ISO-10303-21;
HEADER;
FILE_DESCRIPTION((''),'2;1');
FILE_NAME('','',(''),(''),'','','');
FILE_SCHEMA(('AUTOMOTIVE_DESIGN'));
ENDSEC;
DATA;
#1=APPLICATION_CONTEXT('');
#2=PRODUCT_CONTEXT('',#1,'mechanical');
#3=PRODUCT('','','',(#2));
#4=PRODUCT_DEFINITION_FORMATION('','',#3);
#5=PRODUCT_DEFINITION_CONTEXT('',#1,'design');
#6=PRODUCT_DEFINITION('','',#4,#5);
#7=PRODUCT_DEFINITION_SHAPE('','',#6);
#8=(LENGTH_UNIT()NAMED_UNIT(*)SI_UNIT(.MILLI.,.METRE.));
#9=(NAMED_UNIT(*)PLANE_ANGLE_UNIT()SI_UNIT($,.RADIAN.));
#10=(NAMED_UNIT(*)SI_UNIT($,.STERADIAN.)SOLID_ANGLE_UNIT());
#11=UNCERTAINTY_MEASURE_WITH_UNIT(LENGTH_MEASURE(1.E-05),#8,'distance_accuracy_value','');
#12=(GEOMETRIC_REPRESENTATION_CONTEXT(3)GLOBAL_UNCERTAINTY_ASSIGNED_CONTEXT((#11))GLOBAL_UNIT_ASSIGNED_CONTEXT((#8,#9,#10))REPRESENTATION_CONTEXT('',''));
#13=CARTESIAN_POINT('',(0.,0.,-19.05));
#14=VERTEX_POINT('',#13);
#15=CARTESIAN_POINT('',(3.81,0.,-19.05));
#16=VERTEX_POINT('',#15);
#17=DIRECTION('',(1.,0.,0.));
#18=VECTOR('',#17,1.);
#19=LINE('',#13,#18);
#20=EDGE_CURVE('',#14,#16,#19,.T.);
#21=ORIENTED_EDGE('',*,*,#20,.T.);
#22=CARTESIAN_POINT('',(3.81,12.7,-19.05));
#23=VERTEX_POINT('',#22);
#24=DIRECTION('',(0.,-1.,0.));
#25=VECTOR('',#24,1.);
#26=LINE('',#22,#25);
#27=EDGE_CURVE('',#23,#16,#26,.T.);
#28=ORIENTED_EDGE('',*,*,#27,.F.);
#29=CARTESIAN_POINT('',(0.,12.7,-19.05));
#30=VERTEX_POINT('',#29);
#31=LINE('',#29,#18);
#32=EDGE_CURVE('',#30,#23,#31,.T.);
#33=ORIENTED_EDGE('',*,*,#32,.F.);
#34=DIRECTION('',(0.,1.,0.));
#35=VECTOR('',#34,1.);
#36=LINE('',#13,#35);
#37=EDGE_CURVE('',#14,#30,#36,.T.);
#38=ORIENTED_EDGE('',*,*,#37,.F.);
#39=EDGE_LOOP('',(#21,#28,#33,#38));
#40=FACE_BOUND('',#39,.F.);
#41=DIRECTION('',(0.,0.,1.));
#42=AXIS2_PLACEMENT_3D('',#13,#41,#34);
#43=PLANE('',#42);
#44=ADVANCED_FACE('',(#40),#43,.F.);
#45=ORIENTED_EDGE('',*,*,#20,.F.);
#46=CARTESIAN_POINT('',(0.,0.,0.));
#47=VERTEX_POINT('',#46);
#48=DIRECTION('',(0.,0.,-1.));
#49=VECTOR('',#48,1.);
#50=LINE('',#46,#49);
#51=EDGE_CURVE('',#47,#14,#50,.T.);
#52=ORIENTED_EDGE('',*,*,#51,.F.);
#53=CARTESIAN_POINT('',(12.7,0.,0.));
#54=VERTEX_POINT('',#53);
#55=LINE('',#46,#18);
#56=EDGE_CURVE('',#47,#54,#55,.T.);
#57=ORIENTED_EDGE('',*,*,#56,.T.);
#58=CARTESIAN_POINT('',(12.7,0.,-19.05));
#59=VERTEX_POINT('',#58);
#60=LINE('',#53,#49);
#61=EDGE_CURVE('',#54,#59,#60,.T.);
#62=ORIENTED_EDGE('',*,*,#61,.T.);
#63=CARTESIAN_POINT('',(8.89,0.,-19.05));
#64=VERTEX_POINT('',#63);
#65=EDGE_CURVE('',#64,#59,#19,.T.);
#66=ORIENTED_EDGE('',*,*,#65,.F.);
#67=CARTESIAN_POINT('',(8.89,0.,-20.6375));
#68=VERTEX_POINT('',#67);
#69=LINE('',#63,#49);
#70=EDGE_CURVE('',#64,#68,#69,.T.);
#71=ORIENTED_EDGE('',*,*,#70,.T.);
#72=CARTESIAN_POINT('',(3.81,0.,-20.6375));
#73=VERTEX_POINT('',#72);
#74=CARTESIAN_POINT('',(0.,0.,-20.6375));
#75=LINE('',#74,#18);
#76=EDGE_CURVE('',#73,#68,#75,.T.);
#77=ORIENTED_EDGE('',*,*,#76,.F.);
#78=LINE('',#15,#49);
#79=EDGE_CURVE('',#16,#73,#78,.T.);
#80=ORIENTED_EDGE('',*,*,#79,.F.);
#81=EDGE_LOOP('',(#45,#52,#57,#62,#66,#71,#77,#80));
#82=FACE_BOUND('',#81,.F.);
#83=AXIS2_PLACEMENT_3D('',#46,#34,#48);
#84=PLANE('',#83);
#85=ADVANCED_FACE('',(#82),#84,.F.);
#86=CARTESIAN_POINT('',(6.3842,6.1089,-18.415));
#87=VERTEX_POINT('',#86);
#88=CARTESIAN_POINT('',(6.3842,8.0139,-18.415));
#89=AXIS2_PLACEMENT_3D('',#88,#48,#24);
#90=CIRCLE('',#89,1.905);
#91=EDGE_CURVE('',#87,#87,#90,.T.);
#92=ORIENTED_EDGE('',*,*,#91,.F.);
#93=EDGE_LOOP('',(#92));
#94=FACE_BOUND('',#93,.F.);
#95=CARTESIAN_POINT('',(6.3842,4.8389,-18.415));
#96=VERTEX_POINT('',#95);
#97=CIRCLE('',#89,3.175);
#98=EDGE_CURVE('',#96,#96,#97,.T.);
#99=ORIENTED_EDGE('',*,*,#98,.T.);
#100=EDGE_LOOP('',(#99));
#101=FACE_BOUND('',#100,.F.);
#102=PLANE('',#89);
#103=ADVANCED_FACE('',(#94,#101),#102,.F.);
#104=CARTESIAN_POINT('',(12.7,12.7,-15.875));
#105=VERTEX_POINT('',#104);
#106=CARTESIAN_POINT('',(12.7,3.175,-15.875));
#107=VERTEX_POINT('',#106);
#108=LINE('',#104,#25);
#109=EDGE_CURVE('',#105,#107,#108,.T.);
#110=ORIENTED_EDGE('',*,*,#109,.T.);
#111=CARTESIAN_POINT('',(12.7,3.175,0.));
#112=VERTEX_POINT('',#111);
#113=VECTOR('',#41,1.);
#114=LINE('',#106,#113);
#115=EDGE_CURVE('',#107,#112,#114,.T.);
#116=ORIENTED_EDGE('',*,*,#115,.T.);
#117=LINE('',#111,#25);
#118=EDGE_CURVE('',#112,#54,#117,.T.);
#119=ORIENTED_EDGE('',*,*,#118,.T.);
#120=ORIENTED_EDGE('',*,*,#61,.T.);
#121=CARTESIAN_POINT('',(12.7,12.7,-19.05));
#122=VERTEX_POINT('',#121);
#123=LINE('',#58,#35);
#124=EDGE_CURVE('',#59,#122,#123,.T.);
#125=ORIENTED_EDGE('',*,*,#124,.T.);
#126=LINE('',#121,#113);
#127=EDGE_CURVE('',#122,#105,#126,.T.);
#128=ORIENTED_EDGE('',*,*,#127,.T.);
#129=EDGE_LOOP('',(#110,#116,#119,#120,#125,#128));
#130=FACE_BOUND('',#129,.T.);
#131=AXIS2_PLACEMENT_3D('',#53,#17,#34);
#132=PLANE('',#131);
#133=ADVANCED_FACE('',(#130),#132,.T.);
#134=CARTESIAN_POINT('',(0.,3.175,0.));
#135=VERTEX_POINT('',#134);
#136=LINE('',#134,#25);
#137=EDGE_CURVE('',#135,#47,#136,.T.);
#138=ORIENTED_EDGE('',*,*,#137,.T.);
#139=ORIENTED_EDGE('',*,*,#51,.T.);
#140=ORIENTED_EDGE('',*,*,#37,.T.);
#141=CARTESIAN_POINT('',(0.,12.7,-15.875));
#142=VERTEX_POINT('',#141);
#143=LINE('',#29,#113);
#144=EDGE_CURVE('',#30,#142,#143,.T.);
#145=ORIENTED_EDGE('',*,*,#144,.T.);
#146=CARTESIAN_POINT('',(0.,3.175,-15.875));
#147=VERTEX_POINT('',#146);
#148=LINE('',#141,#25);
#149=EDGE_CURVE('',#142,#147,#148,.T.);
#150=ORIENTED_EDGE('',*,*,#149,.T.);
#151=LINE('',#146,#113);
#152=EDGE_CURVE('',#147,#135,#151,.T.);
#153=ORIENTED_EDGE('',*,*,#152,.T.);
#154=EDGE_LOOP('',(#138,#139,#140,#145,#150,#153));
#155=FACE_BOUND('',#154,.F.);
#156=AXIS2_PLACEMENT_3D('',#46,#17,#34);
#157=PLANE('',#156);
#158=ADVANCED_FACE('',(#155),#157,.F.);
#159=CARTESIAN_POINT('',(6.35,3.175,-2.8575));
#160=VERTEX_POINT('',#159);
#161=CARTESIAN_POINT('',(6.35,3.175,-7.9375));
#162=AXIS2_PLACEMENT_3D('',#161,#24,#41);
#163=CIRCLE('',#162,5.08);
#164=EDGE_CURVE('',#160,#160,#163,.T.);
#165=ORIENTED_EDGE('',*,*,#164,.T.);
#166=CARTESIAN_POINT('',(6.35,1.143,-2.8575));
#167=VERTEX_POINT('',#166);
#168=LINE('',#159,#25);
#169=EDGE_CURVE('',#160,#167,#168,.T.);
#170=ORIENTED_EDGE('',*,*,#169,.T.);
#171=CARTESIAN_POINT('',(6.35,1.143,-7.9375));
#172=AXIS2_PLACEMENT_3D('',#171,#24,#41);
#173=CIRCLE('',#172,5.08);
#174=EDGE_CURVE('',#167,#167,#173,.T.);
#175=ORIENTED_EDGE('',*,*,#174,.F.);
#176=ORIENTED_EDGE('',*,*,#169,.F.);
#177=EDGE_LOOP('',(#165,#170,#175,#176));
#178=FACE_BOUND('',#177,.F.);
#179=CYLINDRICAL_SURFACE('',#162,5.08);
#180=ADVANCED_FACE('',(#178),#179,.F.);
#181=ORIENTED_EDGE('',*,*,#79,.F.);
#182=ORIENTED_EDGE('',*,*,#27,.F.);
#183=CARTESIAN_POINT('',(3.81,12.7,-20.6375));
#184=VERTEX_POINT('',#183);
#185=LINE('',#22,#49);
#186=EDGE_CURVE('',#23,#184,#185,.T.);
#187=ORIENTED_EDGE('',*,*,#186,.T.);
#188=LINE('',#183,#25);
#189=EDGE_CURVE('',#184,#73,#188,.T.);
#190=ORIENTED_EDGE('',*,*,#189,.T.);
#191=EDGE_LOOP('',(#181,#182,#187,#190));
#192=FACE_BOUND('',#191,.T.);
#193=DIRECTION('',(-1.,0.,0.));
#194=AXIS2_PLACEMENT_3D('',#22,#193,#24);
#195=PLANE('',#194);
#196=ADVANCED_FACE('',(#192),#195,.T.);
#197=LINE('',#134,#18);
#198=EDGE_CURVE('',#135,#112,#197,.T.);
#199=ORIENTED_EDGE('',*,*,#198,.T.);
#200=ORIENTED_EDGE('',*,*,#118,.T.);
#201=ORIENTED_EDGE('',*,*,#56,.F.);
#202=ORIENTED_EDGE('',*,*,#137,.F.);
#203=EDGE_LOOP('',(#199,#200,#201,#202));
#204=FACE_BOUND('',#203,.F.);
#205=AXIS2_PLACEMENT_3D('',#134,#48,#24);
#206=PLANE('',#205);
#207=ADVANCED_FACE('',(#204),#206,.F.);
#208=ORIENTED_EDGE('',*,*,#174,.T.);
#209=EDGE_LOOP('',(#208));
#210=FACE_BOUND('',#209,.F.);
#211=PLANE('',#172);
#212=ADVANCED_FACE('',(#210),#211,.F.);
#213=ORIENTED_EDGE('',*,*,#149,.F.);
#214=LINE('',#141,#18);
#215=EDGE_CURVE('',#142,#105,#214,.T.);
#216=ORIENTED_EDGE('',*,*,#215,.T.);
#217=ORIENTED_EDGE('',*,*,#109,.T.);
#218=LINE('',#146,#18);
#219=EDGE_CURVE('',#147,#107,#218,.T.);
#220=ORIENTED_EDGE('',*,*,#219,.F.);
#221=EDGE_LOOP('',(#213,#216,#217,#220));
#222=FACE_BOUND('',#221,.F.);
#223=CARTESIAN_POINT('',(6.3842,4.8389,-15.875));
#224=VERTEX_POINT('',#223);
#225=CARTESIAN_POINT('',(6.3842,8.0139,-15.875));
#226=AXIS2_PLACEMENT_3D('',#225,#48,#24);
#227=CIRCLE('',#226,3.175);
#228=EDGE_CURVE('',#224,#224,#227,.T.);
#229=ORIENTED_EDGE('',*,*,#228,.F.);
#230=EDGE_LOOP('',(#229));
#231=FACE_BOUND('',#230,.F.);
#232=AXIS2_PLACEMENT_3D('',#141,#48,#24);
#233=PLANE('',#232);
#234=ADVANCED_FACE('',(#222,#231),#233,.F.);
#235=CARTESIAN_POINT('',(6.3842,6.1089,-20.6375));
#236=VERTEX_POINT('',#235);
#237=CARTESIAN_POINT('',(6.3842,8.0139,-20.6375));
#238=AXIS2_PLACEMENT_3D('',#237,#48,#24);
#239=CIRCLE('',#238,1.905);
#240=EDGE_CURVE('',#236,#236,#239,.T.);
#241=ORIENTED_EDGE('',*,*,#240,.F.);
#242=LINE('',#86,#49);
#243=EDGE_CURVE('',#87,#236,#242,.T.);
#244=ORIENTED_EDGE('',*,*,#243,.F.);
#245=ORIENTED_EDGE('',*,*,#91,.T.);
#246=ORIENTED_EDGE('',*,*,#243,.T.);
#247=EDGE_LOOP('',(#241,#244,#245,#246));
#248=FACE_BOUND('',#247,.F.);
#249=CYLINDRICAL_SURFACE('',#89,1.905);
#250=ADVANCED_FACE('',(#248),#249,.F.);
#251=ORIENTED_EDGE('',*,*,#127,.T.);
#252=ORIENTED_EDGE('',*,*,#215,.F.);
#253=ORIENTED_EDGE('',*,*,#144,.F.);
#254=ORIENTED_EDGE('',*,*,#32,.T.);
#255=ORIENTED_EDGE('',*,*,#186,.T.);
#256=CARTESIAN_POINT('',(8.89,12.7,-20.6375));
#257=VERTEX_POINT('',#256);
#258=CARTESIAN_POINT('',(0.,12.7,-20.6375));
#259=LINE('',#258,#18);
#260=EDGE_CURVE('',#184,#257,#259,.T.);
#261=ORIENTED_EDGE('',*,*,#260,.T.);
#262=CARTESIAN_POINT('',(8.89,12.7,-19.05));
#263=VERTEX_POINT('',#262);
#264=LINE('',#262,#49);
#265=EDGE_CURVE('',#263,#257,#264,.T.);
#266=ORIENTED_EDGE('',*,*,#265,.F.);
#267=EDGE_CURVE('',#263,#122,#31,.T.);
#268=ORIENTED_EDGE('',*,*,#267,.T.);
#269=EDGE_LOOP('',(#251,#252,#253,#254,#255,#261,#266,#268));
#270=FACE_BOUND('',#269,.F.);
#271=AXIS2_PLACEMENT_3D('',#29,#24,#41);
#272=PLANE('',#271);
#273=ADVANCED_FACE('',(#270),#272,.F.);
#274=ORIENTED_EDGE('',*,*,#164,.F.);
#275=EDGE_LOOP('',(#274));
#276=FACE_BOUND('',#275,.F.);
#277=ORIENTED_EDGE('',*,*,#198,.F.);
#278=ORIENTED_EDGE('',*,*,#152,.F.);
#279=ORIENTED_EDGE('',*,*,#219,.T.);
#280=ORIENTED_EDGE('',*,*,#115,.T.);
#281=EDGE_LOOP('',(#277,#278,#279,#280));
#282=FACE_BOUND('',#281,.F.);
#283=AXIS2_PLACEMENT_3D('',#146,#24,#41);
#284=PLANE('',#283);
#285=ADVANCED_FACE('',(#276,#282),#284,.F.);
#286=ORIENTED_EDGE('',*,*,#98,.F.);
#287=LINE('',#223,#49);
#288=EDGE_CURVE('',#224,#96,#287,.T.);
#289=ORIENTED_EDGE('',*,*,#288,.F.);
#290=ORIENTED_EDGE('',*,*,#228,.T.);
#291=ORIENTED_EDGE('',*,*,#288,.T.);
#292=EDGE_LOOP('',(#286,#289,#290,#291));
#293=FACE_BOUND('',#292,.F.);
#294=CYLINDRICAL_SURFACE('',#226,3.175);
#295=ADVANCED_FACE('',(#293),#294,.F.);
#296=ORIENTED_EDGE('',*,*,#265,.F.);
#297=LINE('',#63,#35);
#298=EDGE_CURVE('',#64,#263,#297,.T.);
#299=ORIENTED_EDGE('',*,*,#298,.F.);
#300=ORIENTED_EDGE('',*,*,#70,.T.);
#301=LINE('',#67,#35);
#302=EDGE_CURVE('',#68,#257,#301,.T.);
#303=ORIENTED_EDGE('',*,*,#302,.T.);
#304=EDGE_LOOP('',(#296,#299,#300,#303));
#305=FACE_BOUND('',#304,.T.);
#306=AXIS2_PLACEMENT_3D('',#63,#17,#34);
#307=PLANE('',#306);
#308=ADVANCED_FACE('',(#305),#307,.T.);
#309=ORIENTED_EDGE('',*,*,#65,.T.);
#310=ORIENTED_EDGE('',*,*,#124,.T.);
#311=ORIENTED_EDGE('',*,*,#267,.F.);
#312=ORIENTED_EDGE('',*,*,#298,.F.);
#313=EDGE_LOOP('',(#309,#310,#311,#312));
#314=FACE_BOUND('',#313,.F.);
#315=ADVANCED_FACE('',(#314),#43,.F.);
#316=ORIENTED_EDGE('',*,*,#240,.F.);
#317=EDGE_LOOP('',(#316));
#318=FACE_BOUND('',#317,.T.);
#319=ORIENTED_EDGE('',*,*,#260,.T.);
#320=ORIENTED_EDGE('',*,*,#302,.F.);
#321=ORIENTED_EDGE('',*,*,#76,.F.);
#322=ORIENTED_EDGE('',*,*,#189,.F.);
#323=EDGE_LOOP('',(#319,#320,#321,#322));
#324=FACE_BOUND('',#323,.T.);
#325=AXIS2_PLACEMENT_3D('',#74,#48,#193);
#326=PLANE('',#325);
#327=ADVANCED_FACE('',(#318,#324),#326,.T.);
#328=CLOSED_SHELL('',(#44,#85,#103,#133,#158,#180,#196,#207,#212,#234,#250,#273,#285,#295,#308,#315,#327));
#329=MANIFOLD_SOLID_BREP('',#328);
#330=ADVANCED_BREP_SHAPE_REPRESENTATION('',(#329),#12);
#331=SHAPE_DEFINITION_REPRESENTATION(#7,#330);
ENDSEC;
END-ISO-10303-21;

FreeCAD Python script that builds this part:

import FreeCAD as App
import Part
import Sketcher
from FreeCAD import Vector
Q = App.Units.Quantity


def add_polygon(sketch, points):
    """Adds a closed chain of lines whose ends are joined by coincident constraints."""
    first, n = sketch.GeometryCount, len(points)
    for a, b in zip(points, points[1:] + points[:1]):
        sketch.addGeometry(Part.LineSegment(App.Vector(*a, 0), App.Vector(*b, 0)), False)
    for i in range(n):
        sketch.addConstraint(Sketcher.Constraint("Coincident", first + i, 2, first + (i + 1) % n, 1))

doc = App.newDocument("Part")
params = doc.addObject("Spreadsheet::Sheet", "Params")
for row, (alias, value) in enumerate([
    ("sketch1_width", "0.5 in"),
    ("sketch1_height", "0.75 in"),
    ("sketch1_width2", "0.125 in"),
    ("pad1_length", "0.5 in"),
    ("sketch2_diameter", "0.4 in"),
    ("hole_diameter", "0.4 in"),
    ("hole_depth", "0.08 in"),
    ("sketch3_width", "0.2 in"),
    ("sketch3_height", "0.5 in"),
    ("pad2_length", "0.0625 in"),
    ("sketch4_diameter", "0.15 in"),
    ("hole2_diameter", "0.15 in"),
    ("hole2_cbore_diameter", "0.25 in"),
    ("hole2_cbore_depth", "0.1 in"),
], start=1):
    params.set(f"A{row}", alias)
    params.set(f"B{row}", "=" + value)
    params.setAlias(f"B{row}", alias)

body = doc.addObject("PartDesign::Body", "Body")

sketch1 = body.newObject("Sketcher::SketchObject", "Sketch")
sketch1.AttachmentSupport = (doc.getObject("YZ_Plane"), [""])
sketch1.MapMode = "FlatFace"
add_polygon(sketch1, [(3.175, 0), (0, 0), (0, -19.05), (12.7, -19.05), (12.7, -15.875), (3.175, -15.875)])
sketch1.addConstraint([
    Sketcher.Constraint("Horizontal", 0),
    Sketcher.Constraint("Vertical", 1),
    Sketcher.Constraint("Horizontal", 2),
    Sketcher.Constraint("Vertical", 3),
    Sketcher.Constraint("Horizontal", 4),
    Sketcher.Constraint("Vertical", 5),
    Sketcher.Constraint("Coincident", 0, 2, -1, 1),
    Sketcher.Constraint("Equal", 0, 3),
    Sketcher.Constraint("DistanceX", 2, 1, 2, 2, Q("0.5 in")),
    Sketcher.Constraint("DistanceY", 1, 2, 1, 1, Q("0.75 in")),
    Sketcher.Constraint("DistanceX", 0, 2, 0, 1, Q("0.125 in")),
])
sketch1.setExpression("Constraints[14]", "Params.sketch1_width")
sketch1.setExpression("Constraints[15]", "Params.sketch1_height")
sketch1.setExpression("Constraints[16]", "Params.sketch1_width2")
pad1 = body.newObject("PartDesign::Pad", "Pad")
pad1.Profile = sketch1
pad1.setExpression("Length", "Params.pad1_length")

sketch2 = body.newObject("Sketcher::SketchObject", "Sketch001")
sketch2.AttachmentSupport = (doc.getObject("XZ_Plane"), [""])
sketch2.MapMode = "FlatFace"
sketch2.AttachmentOffset = App.Placement(Vector(0, 0, -0.125 * 25.4), App.Rotation())
sketch2.addGeometry(Part.Circle(Vector(6.35, -7.9375, 0), Vector(0, 0, 1), 5.08), False)
sketch2.addConstraint([
    Sketcher.Constraint("Diameter", 0, Q("0.4 in")),
    Sketcher.Constraint("DistanceX", -1, 1, 0, 3, Q("0.25 in")),
    Sketcher.Constraint("DistanceY", 0, 3, -1, 1, Q("0.3125 in")),
])
sketch2.setExpression("Constraints[0]", "Params.sketch2_diameter")
doc.recompute()
hole = body.newObject("PartDesign::Hole", "Hole")
hole.Profile = sketch2
hole.ThreadType = "None"
hole.setExpression("Diameter", "Params.hole_diameter")
hole.DepthType = "Dimension"
hole.setExpression("Depth", "Params.hole_depth")
hole.DrillPoint = "Flat"
hole.Reversed = True

sketch3 = body.newObject("Sketcher::SketchObject", "Sketch002")
sketch3.AttachmentSupport = (doc.getObject("XY_Plane"), [""])
sketch3.MapMode = "FlatFace"
sketch3.AttachmentOffset = App.Placement(Vector(0, 0, -0.75 * 25.4), App.Rotation())
add_polygon(sketch3, [(3.81, 0), (3.81, 12.7), (8.89, 12.7), (8.89, 0)])
sketch3.addConstraint([
    Sketcher.Constraint("Vertical", 0),
    Sketcher.Constraint("Horizontal", 1),
    Sketcher.Constraint("Vertical", 2),
    Sketcher.Constraint("Horizontal", 3),
    Sketcher.Constraint("PointOnObject", 2, 2, -1),
    Sketcher.Constraint("DistanceX", 1, 1, 1, 2, Q("0.2 in")),
    Sketcher.Constraint("DistanceY", 0, 1, 0, 2, Q("0.5 in")),
    Sketcher.Constraint("DistanceX", -1, 1, 0, 2, Q("0.15 in")),
])
sketch3.setExpression("Constraints[9]", "Params.sketch3_width")
sketch3.setExpression("Constraints[10]", "Params.sketch3_height")
pad2 = body.newObject("PartDesign::Pad", "Pad001")
pad2.Profile = sketch3
pad2.setExpression("Length", "Params.pad2_length")
pad2.Reversed = True

sketch4 = body.newObject("Sketcher::SketchObject", "Sketch003")
sketch4.AttachmentSupport = (doc.getObject("XY_Plane"), [""])
sketch4.MapMode = "FlatFace"
sketch4.AttachmentOffset = App.Placement(Vector(0, 0, -0.625 * 25.4), App.Rotation())
sketch4.addGeometry(Part.Circle(Vector(6.3842, 8.0139, 0), Vector(0, 0, 1), 1.905), False)
sketch4.addConstraint([
    Sketcher.Constraint("Diameter", 0, Q("0.15 in")),
    Sketcher.Constraint("DistanceY", -1, 1, 0, 3, Q("0.3155 in")),
    Sketcher.Constraint("DistanceX", -1, 1, 0, 3, 6.3842),
])
sketch4.setExpression("Constraints[0]", "Params.sketch4_diameter")
doc.recompute()
hole2 = body.newObject("PartDesign::Hole", "Hole001")
hole2.Profile = sketch4
hole2.ThreadType = "None"
hole2.setExpression("Diameter", "Params.hole2_diameter")
hole2.DepthType = "ThroughAll"
hole2.HoleCutType = "Counterbore"
hole2.setExpression("HoleCutDiameter", "Params.hole2_cbore_diameter")
hole2.setExpression("HoleCutDepth", "Params.hole2_cbore_depth")

doc.recompute()
